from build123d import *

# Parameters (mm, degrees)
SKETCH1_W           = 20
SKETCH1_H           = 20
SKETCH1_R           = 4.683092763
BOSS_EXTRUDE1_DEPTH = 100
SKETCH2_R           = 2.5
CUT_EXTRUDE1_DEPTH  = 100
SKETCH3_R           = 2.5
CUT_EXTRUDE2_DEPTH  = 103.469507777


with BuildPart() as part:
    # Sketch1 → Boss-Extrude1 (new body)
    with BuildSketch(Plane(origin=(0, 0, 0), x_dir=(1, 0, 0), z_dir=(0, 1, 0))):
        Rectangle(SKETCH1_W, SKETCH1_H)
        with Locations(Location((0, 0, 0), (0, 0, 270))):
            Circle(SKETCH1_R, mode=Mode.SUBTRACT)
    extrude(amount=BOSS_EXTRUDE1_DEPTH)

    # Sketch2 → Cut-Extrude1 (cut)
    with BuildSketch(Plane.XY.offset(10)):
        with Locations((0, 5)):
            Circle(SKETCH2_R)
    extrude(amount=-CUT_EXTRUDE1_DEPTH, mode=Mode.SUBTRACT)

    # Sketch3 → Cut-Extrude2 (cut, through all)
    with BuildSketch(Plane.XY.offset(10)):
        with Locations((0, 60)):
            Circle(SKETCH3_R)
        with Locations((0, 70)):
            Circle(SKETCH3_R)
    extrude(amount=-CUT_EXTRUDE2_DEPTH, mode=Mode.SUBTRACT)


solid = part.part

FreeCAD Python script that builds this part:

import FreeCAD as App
import Part
import Sketcher
Q = App.Units.Quantity

doc = App.newDocument("Part")
body = doc.addObject("PartDesign::Body", "Body")

# Sketch on XZ plane
sketch1 = doc.addObject("Sketcher::SketchObject", "Sketch")
body.addObject(sketch1)
sketch1.AttachmentSupport = (doc.XZ_Plane, [""])
sketch1.MapMode = "FlatFace"
sketch1.addGeometry(Part.LineSegment(App.Vector(-10, -10, 0), App.Vector(-10, 10, 0)), False)
sketch1.addGeometry(Part.LineSegment(App.Vector(-10, 10, 0), App.Vector(10, 10, 0)), False)
sketch1.addGeometry(Part.LineSegment(App.Vector(10, 10, 0), App.Vector(10, -10, 0)), False)
sketch1.addGeometry(Part.LineSegment(App.Vector(10, -10, 0), App.Vector(-10, -10, 0)), False)
sketch1.addGeometry(Part.Circle(App.Vector(0, 0, 0), App.Vector(0, 0, 1), 4.7), False)
sketch1.addConstraint(Sketcher.Constraint("Coincident", 0, 2, 1, 1))
sketch1.addConstraint(Sketcher.Constraint("Coincident", 1, 2, 2, 1))
sketch1.addConstraint(Sketcher.Constraint("Coincident", 2, 2, 3, 1))
sketch1.addConstraint(Sketcher.Constraint("Coincident", 3, 2, 0, 1))
sketch1.addConstraint(Sketcher.Constraint("Vertical", 0))
sketch1.addConstraint(Sketcher.Constraint("Horizontal", 1))
sketch1.addConstraint(Sketcher.Constraint("Vertical", 2))
sketch1.addConstraint(Sketcher.Constraint("Horizontal", 3))
sketch1.addConstraint(Sketcher.Constraint("Coincident", 4, 3, -1, 1))
sketch1.addConstraint(Sketcher.Constraint("Symmetric", 0, 2, 2, 2, -1, 1))
sketch1.addConstraint(Sketcher.Constraint("Equal", 3, 0))
sketch1.addConstraint(Sketcher.Constraint("DistanceX", 1, 1, 1, 2, Q("20 mm")))
sketch1.addConstraint(Sketcher.Constraint("Diameter", 4, Q("9.366186 mm")))
pad1 = doc.addObject("PartDesign::Pad", "Pad")
body.addObject(pad1)
pad1.Profile = sketch1
pad1.Length = 100
pad1.Reversed = True

# Sketch on XY plane
sketch2 = doc.addObject("Sketcher::SketchObject", "Sketch001")
body.addObject(sketch2)
sketch2.AttachmentSupport = (doc.XY_Plane, [""])
sketch2.MapMode = "FlatFace"
sketch2.AttachmentOffset = App.Placement(App.Vector(0, 0, 10), App.Rotation())
sketch2.addGeometry(Part.Circle(App.Vector(0, 5, 0), App.Vector(0, 0, 1), 2.5), False)
sketch2.addConstraint(Sketcher.Constraint("PointOnObject", 0, 3, -2))
sketch2.addConstraint(Sketcher.Constraint("Diameter", 0, Q("5 mm")))
sketch2.addConstraint(Sketcher.Constraint("DistanceY", -1, 1, 0, 3, Q("5 mm")))
pocket1 = doc.addObject("PartDesign::Pocket", "Pocket")
body.addObject(pocket1)
pocket1.Profile = sketch2
pocket1.Length = 100

# Sketch on XY plane
sketch3 = doc.addObject("Sketcher::SketchObject", "Sketch002")
body.addObject(sketch3)
sketch3.AttachmentSupport = (doc.XY_Plane, [""])
sketch3.MapMode = "FlatFace"
sketch3.AttachmentOffset = App.Placement(App.Vector(0, 0, 10), App.Rotation())
sketch3.addGeometry(Part.Circle(App.Vector(0, 60, 0), App.Vector(0, 0, 1), 2.5), False)
sketch3.addGeometry(Part.Circle(App.Vector(0, 70, 0), App.Vector(0, 0, 1), 2.5), False)
sketch3.addConstraint(Sketcher.Constraint("Equal", 0, 1))
sketch3.addConstraint(Sketcher.Constraint("PointOnObject", 0, 3, -2))
sketch3.addConstraint(Sketcher.Constraint("PointOnObject", 1, 3, -2))
sketch3.addConstraint(Sketcher.Constraint("Diameter", 0, Q("5 mm")))
sketch3.addConstraint(Sketcher.Constraint("DistanceY", -1, 1, 0, 3, Q("60 mm")))
sketch3.addConstraint(Sketcher.Constraint("DistanceY", -1, 1, 1, 3, Q("70 mm")))
pocket2 = doc.addObject("PartDesign::Pocket", "Pocket001")
body.addObject(pocket2)
pocket2.Profile = sketch3
pocket2.Type = "ThroughAll"

doc.recompute()
